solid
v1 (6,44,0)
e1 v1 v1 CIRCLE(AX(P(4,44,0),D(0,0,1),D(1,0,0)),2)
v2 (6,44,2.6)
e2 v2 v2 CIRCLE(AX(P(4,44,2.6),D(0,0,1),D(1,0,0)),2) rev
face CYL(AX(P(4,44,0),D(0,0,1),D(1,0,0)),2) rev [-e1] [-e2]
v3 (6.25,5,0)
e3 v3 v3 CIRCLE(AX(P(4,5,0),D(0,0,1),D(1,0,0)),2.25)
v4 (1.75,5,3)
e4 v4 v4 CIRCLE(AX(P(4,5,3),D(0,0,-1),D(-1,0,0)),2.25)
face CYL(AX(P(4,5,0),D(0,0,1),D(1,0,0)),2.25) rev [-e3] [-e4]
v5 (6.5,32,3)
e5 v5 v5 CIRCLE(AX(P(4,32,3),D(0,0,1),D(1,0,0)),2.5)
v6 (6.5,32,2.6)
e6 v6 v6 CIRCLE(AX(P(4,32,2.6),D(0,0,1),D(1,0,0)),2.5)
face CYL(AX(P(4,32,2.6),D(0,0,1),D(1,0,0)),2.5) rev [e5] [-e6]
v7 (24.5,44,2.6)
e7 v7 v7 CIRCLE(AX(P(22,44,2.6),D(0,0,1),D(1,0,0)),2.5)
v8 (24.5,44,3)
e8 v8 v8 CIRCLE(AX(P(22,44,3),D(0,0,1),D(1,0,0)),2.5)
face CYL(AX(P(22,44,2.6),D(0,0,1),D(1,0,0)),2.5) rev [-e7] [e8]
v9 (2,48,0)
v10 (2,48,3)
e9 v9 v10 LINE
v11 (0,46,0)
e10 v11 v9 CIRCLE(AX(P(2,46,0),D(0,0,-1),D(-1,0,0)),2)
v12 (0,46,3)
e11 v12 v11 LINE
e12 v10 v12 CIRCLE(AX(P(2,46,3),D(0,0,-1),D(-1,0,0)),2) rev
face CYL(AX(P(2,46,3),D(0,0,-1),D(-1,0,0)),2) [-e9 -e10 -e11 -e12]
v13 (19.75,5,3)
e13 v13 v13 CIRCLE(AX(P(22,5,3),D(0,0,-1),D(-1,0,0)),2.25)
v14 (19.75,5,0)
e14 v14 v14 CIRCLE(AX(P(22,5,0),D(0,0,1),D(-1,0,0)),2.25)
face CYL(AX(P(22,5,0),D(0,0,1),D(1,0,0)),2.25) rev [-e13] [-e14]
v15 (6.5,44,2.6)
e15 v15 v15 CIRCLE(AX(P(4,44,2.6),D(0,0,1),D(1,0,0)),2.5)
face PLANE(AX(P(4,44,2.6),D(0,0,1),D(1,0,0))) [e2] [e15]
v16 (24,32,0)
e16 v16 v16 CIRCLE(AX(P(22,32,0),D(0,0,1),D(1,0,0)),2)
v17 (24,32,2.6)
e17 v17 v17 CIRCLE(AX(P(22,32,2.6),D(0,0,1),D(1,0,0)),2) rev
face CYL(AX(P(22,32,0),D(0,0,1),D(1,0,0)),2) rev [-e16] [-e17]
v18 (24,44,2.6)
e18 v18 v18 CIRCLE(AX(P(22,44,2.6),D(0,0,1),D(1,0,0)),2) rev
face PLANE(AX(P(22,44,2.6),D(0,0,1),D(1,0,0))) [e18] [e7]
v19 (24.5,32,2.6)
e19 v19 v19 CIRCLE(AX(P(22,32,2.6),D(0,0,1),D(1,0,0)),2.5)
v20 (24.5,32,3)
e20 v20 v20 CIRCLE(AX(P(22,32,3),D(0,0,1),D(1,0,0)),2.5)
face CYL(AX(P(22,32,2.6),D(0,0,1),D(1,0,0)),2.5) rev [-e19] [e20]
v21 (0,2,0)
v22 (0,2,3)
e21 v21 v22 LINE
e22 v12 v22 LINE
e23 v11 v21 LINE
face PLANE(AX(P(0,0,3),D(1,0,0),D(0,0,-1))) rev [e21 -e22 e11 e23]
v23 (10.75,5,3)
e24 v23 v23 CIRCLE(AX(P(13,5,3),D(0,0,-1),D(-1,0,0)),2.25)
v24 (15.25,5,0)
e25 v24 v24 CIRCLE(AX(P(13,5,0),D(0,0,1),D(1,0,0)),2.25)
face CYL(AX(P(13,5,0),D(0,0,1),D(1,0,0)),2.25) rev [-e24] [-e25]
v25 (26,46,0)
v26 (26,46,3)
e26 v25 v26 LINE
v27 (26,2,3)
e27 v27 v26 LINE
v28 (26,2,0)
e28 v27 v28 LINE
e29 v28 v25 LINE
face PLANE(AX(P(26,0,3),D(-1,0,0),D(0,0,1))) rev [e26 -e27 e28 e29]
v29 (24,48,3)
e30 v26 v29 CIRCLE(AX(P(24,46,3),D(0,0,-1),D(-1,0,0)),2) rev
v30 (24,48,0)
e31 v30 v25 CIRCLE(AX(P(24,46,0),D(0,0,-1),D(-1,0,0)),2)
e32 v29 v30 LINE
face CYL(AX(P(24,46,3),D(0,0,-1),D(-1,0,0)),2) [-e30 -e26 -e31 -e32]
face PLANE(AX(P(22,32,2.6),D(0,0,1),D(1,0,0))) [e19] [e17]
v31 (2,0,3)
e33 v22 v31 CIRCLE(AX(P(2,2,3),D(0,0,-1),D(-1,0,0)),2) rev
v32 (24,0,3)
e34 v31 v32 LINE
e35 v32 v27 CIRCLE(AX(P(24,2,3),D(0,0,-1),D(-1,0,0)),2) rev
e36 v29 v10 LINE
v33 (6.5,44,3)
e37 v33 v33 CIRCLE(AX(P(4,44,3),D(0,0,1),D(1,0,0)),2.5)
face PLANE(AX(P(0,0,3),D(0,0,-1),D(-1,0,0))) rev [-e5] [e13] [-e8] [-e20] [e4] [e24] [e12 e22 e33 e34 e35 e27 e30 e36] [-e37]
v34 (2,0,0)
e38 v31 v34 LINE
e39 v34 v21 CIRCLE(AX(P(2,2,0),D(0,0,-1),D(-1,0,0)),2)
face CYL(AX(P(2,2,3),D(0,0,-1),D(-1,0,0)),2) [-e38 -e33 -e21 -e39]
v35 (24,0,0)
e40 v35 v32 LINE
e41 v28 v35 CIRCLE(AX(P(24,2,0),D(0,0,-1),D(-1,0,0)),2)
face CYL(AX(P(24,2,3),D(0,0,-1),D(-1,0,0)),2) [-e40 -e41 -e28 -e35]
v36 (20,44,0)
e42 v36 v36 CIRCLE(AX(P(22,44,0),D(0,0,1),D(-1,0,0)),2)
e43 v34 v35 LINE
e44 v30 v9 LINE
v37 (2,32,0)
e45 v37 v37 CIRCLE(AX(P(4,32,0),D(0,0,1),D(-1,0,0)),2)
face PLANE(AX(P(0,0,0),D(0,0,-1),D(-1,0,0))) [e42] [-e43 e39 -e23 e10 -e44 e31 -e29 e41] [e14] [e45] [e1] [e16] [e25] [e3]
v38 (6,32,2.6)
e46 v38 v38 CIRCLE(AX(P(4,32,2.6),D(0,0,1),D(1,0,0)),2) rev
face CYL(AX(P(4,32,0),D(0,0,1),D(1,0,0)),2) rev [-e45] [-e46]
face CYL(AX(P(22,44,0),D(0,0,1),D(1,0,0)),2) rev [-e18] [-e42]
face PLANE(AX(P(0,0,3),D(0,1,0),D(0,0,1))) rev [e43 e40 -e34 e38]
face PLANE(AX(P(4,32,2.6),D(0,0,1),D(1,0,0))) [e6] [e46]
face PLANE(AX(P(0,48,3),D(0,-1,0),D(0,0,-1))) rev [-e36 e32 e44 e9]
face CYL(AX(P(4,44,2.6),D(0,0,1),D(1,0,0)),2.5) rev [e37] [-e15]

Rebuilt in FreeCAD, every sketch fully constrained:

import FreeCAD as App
import Part
import Sketcher

V = App.Vector
Q = App.Units.Quantity


def edges_at(feature, points):
    """Names of the edges that pass closest to the given points."""
    edges = feature.Shape.Edges
    near = lambda p: min(range(len(edges)), key=lambda i: edges[i].distToShape(Part.Vertex(*p))[0])
    return sorted({f"Edge{near(p) + 1}" for p in points})

doc = App.newDocument("Part")
body = doc.addObject("PartDesign::Body", "Body")

# Sketch on XY plane
sketch1 = doc.addObject("Sketcher::SketchObject", "Sketch")
body.addObject(sketch1)
sketch1.AttachmentSupport = (doc.XY_Plane, [""])
sketch1.MapMode = "FlatFace"
sketch1.addGeometry(Part.LineSegment(V(0, 48, 0), V(0, 0, 0)), False)
sketch1.addGeometry(Part.LineSegment(V(0, 0, 0), V(26, 0, 0)), False)
sketch1.addGeometry(Part.LineSegment(V(26, 0, 0), V(26, 48, 0)), False)
sketch1.addGeometry(Part.LineSegment(V(26, 48, 0), V(0, 48, 0)), False)
sketch1.addConstraint(Sketcher.Constraint("Coincident", 0, 2, 1, 1))
sketch1.addConstraint(Sketcher.Constraint("Coincident", 1, 2, 2, 1))
sketch1.addConstraint(Sketcher.Constraint("Coincident", 2, 2, 3, 1))
sketch1.addConstraint(Sketcher.Constraint("Coincident", 3, 2, 0, 1))
sketch1.addConstraint(Sketcher.Constraint("Vertical", 0))
sketch1.addConstraint(Sketcher.Constraint("Horizontal", 1))
sketch1.addConstraint(Sketcher.Constraint("Vertical", 2))
sketch1.addConstraint(Sketcher.Constraint("Horizontal", 3))
sketch1.addConstraint(Sketcher.Constraint("Coincident", 0, 2, -1, 1))
sketch1.addConstraint(Sketcher.Constraint("DistanceX", 1, 1, 1, 2, Q("26 mm")))
sketch1.addConstraint(Sketcher.Constraint("DistanceY", 0, 2, 0, 1, Q("48 mm")))
pad1 = doc.addObject("PartDesign::Pad", "Pad")
body.addObject(pad1)
pad1.Profile = sketch1
pad1.Length = 3

# Sketch on XY plane
sketch2 = doc.addObject("Sketcher::SketchObject", "Sketch001")
body.addObject(sketch2)
sketch2.AttachmentSupport = (doc.XY_Plane, [""])
sketch2.MapMode = "FlatFace"
sketch2.AttachmentOffset = App.Placement(V(0, 0, 3), App.Rotation())
sketch2.addGeometry(Part.Circle(V(4, 44, 0), V(0, 0, 1), 2), False)
sketch2.addGeometry(Part.Circle(V(4, 32, 0), V(0, 0, 1), 2), False)
sketch2.addGeometry(Part.Circle(V(22, 32, 0), V(0, 0, 1), 2), False)
sketch2.addGeometry(Part.Circle(V(22, 44, 0), V(0, 0, 1), 2), False)
sketch2.addConstraint(Sketcher.Constraint("Equal", 0, 1))
sketch2.addConstraint(Sketcher.Constraint("Equal", 1, 2))
sketch2.addConstraint(Sketcher.Constraint("Equal", 2, 3))
sketch2.addConstraint(Sketcher.Constraint("Horizontal", 1, 3, 2, 3))
sketch2.addConstraint(Sketcher.Constraint("Horizontal", 0, 3, 3, 3))
sketch2.addConstraint(Sketcher.Constraint("Vertical", 0, 3, 1, 3))
sketch2.addConstraint(Sketcher.Constraint("Vertical", 2, 3, 3, 3))
sketch2.addConstraint(Sketcher.Constraint("Diameter", 0, Q("4 mm")))
sketch2.addConstraint(Sketcher.Constraint("DistanceX", -1, 1, 0, 3, Q("4 mm")))
sketch2.addConstraint(Sketcher.Constraint("DistanceY", -1, 1, 0, 3, Q("44 mm")))
sketch2.addConstraint(Sketcher.Constraint("DistanceY", -1, 1, 1, 3, Q("32 mm")))
sketch2.addConstraint(Sketcher.Constraint("DistanceX", -1, 1, 2, 3, Q("22 mm")))
pocket1 = doc.addObject("PartDesign::Pocket", "Pocket")
body.addObject(pocket1)
pocket1.Profile = sketch2
pocket1.Type = "ThroughAll"
pocket1.Midplane = True

# Sketch on XY plane
sketch3 = doc.addObject("Sketcher::SketchObject", "Sketch002")
body.addObject(sketch3)
sketch3.AttachmentSupport = (doc.XY_Plane, [""])
sketch3.MapMode = "FlatFace"
sketch3.AttachmentOffset = App.Placement(V(0, 0, 3), App.Rotation())
sketch3.addGeometry(Part.Circle(V(13, 5, 0), V(0, 0, 1), 2.2), False)
sketch3.addGeometry(Part.Circle(V(4, 5, 0), V(0, 0, 1), 2.2), False)
sketch3.addGeometry(Part.Circle(V(22, 5, 0), V(0, 0, 1), 2.2), False)
sketch3.addConstraint(Sketcher.Constraint("Equal", 0, 1))
sketch3.addConstraint(Sketcher.Constraint("Equal", 1, 2))
sketch3.addConstraint(Sketcher.Constraint("Horizontal", 0, 3, 1, 3))
sketch3.addConstraint(Sketcher.Constraint("Horizontal", 1, 3, 2, 3))
sketch3.addConstraint(Sketcher.Constraint("Diameter", 0, Q("4.5 mm")))
sketch3.addConstraint(Sketcher.Constraint("DistanceX", -1, 1, 0, 3, Q("13 mm")))
sketch3.addConstraint(Sketcher.Constraint("DistanceY", -1, 1, 0, 3, Q("5 mm")))
sketch3.addConstraint(Sketcher.Constraint("DistanceX", -1, 1, 1, 3, Q("4 mm")))
sketch3.addConstraint(Sketcher.Constraint("DistanceX", -1, 1, 2, 3, Q("22 mm")))
pocket2 = doc.addObject("PartDesign::Pocket", "Pocket001")
body.addObject(pocket2)
pocket2.Profile = sketch3
pocket2.Type = "ThroughAll"
pocket2.Midplane = True

# Sketch on XY plane
sketch4 = doc.addObject("Sketcher::SketchObject", "Sketch003")
body.addObject(sketch4)
sketch4.AttachmentSupport = (doc.XY_Plane, [""])
sketch4.MapMode = "FlatFace"
sketch4.AttachmentOffset = App.Placement(V(0, 0, 3), App.Rotation())
sketch4.addGeometry(Part.Circle(V(4, 32, 0), V(0, 0, 1), 2.5), False)
sketch4.addGeometry(Part.Circle(V(22, 32, 0), V(0, 0, 1), 2.5), False)
sketch4.addGeometry(Part.Circle(V(22, 44, 0), V(0, 0, 1), 2.5), False)
sketch4.addGeometry(Part.Circle(V(4, 44, 0), V(0, 0, 1), 2.5), False)
sketch4.addConstraint(Sketcher.Constraint("Equal", 0, 1))
sketch4.addConstraint(Sketcher.Constraint("Equal", 1, 2))
sketch4.addConstraint(Sketcher.Constraint("Equal", 2, 3))
sketch4.addConstraint(Sketcher.Constraint("Horizontal", 0, 3, 1, 3))
sketch4.addConstraint(Sketcher.Constraint("Horizontal", 2, 3, 3, 3))
sketch4.addConstraint(Sketcher.Constraint("Vertical", 1, 3, 2, 3))
sketch4.addConstraint(Sketcher.Constraint("Vertical", 0, 3, 3, 3))
sketch4.addConstraint(Sketcher.Constraint("Diameter", 0, Q("5 mm")))
sketch4.addConstraint(Sketcher.Constraint("DistanceX", -1, 1, 0, 3, Q("4 mm")))
sketch4.addConstraint(Sketcher.Constraint("DistanceY", -1, 1, 0, 3, Q("32 mm")))
sketch4.addConstraint(Sketcher.Constraint("DistanceX", -1, 1, 1, 3, Q("22 mm")))
sketch4.addConstraint(Sketcher.Constraint("DistanceY", -1, 1, 2, 3, Q("44 mm")))
pocket3 = doc.addObject("PartDesign::Pocket", "Pocket002")
body.addObject(pocket3)
pocket3.Profile = sketch4
pocket3.Length = 0.4
doc.recompute()

fillet = doc.addObject("PartDesign::Fillet", "Fillet")
body.addObject(fillet)
fillet.Base = (pocket3, edges_at(pocket3, [
    (0, 48, 1.5),
    (26, 48, 1.5),
    (26, 0, 1.5),
    (0, 0, 1.5),
]))
fillet.Radius = 2

doc.recompute()
